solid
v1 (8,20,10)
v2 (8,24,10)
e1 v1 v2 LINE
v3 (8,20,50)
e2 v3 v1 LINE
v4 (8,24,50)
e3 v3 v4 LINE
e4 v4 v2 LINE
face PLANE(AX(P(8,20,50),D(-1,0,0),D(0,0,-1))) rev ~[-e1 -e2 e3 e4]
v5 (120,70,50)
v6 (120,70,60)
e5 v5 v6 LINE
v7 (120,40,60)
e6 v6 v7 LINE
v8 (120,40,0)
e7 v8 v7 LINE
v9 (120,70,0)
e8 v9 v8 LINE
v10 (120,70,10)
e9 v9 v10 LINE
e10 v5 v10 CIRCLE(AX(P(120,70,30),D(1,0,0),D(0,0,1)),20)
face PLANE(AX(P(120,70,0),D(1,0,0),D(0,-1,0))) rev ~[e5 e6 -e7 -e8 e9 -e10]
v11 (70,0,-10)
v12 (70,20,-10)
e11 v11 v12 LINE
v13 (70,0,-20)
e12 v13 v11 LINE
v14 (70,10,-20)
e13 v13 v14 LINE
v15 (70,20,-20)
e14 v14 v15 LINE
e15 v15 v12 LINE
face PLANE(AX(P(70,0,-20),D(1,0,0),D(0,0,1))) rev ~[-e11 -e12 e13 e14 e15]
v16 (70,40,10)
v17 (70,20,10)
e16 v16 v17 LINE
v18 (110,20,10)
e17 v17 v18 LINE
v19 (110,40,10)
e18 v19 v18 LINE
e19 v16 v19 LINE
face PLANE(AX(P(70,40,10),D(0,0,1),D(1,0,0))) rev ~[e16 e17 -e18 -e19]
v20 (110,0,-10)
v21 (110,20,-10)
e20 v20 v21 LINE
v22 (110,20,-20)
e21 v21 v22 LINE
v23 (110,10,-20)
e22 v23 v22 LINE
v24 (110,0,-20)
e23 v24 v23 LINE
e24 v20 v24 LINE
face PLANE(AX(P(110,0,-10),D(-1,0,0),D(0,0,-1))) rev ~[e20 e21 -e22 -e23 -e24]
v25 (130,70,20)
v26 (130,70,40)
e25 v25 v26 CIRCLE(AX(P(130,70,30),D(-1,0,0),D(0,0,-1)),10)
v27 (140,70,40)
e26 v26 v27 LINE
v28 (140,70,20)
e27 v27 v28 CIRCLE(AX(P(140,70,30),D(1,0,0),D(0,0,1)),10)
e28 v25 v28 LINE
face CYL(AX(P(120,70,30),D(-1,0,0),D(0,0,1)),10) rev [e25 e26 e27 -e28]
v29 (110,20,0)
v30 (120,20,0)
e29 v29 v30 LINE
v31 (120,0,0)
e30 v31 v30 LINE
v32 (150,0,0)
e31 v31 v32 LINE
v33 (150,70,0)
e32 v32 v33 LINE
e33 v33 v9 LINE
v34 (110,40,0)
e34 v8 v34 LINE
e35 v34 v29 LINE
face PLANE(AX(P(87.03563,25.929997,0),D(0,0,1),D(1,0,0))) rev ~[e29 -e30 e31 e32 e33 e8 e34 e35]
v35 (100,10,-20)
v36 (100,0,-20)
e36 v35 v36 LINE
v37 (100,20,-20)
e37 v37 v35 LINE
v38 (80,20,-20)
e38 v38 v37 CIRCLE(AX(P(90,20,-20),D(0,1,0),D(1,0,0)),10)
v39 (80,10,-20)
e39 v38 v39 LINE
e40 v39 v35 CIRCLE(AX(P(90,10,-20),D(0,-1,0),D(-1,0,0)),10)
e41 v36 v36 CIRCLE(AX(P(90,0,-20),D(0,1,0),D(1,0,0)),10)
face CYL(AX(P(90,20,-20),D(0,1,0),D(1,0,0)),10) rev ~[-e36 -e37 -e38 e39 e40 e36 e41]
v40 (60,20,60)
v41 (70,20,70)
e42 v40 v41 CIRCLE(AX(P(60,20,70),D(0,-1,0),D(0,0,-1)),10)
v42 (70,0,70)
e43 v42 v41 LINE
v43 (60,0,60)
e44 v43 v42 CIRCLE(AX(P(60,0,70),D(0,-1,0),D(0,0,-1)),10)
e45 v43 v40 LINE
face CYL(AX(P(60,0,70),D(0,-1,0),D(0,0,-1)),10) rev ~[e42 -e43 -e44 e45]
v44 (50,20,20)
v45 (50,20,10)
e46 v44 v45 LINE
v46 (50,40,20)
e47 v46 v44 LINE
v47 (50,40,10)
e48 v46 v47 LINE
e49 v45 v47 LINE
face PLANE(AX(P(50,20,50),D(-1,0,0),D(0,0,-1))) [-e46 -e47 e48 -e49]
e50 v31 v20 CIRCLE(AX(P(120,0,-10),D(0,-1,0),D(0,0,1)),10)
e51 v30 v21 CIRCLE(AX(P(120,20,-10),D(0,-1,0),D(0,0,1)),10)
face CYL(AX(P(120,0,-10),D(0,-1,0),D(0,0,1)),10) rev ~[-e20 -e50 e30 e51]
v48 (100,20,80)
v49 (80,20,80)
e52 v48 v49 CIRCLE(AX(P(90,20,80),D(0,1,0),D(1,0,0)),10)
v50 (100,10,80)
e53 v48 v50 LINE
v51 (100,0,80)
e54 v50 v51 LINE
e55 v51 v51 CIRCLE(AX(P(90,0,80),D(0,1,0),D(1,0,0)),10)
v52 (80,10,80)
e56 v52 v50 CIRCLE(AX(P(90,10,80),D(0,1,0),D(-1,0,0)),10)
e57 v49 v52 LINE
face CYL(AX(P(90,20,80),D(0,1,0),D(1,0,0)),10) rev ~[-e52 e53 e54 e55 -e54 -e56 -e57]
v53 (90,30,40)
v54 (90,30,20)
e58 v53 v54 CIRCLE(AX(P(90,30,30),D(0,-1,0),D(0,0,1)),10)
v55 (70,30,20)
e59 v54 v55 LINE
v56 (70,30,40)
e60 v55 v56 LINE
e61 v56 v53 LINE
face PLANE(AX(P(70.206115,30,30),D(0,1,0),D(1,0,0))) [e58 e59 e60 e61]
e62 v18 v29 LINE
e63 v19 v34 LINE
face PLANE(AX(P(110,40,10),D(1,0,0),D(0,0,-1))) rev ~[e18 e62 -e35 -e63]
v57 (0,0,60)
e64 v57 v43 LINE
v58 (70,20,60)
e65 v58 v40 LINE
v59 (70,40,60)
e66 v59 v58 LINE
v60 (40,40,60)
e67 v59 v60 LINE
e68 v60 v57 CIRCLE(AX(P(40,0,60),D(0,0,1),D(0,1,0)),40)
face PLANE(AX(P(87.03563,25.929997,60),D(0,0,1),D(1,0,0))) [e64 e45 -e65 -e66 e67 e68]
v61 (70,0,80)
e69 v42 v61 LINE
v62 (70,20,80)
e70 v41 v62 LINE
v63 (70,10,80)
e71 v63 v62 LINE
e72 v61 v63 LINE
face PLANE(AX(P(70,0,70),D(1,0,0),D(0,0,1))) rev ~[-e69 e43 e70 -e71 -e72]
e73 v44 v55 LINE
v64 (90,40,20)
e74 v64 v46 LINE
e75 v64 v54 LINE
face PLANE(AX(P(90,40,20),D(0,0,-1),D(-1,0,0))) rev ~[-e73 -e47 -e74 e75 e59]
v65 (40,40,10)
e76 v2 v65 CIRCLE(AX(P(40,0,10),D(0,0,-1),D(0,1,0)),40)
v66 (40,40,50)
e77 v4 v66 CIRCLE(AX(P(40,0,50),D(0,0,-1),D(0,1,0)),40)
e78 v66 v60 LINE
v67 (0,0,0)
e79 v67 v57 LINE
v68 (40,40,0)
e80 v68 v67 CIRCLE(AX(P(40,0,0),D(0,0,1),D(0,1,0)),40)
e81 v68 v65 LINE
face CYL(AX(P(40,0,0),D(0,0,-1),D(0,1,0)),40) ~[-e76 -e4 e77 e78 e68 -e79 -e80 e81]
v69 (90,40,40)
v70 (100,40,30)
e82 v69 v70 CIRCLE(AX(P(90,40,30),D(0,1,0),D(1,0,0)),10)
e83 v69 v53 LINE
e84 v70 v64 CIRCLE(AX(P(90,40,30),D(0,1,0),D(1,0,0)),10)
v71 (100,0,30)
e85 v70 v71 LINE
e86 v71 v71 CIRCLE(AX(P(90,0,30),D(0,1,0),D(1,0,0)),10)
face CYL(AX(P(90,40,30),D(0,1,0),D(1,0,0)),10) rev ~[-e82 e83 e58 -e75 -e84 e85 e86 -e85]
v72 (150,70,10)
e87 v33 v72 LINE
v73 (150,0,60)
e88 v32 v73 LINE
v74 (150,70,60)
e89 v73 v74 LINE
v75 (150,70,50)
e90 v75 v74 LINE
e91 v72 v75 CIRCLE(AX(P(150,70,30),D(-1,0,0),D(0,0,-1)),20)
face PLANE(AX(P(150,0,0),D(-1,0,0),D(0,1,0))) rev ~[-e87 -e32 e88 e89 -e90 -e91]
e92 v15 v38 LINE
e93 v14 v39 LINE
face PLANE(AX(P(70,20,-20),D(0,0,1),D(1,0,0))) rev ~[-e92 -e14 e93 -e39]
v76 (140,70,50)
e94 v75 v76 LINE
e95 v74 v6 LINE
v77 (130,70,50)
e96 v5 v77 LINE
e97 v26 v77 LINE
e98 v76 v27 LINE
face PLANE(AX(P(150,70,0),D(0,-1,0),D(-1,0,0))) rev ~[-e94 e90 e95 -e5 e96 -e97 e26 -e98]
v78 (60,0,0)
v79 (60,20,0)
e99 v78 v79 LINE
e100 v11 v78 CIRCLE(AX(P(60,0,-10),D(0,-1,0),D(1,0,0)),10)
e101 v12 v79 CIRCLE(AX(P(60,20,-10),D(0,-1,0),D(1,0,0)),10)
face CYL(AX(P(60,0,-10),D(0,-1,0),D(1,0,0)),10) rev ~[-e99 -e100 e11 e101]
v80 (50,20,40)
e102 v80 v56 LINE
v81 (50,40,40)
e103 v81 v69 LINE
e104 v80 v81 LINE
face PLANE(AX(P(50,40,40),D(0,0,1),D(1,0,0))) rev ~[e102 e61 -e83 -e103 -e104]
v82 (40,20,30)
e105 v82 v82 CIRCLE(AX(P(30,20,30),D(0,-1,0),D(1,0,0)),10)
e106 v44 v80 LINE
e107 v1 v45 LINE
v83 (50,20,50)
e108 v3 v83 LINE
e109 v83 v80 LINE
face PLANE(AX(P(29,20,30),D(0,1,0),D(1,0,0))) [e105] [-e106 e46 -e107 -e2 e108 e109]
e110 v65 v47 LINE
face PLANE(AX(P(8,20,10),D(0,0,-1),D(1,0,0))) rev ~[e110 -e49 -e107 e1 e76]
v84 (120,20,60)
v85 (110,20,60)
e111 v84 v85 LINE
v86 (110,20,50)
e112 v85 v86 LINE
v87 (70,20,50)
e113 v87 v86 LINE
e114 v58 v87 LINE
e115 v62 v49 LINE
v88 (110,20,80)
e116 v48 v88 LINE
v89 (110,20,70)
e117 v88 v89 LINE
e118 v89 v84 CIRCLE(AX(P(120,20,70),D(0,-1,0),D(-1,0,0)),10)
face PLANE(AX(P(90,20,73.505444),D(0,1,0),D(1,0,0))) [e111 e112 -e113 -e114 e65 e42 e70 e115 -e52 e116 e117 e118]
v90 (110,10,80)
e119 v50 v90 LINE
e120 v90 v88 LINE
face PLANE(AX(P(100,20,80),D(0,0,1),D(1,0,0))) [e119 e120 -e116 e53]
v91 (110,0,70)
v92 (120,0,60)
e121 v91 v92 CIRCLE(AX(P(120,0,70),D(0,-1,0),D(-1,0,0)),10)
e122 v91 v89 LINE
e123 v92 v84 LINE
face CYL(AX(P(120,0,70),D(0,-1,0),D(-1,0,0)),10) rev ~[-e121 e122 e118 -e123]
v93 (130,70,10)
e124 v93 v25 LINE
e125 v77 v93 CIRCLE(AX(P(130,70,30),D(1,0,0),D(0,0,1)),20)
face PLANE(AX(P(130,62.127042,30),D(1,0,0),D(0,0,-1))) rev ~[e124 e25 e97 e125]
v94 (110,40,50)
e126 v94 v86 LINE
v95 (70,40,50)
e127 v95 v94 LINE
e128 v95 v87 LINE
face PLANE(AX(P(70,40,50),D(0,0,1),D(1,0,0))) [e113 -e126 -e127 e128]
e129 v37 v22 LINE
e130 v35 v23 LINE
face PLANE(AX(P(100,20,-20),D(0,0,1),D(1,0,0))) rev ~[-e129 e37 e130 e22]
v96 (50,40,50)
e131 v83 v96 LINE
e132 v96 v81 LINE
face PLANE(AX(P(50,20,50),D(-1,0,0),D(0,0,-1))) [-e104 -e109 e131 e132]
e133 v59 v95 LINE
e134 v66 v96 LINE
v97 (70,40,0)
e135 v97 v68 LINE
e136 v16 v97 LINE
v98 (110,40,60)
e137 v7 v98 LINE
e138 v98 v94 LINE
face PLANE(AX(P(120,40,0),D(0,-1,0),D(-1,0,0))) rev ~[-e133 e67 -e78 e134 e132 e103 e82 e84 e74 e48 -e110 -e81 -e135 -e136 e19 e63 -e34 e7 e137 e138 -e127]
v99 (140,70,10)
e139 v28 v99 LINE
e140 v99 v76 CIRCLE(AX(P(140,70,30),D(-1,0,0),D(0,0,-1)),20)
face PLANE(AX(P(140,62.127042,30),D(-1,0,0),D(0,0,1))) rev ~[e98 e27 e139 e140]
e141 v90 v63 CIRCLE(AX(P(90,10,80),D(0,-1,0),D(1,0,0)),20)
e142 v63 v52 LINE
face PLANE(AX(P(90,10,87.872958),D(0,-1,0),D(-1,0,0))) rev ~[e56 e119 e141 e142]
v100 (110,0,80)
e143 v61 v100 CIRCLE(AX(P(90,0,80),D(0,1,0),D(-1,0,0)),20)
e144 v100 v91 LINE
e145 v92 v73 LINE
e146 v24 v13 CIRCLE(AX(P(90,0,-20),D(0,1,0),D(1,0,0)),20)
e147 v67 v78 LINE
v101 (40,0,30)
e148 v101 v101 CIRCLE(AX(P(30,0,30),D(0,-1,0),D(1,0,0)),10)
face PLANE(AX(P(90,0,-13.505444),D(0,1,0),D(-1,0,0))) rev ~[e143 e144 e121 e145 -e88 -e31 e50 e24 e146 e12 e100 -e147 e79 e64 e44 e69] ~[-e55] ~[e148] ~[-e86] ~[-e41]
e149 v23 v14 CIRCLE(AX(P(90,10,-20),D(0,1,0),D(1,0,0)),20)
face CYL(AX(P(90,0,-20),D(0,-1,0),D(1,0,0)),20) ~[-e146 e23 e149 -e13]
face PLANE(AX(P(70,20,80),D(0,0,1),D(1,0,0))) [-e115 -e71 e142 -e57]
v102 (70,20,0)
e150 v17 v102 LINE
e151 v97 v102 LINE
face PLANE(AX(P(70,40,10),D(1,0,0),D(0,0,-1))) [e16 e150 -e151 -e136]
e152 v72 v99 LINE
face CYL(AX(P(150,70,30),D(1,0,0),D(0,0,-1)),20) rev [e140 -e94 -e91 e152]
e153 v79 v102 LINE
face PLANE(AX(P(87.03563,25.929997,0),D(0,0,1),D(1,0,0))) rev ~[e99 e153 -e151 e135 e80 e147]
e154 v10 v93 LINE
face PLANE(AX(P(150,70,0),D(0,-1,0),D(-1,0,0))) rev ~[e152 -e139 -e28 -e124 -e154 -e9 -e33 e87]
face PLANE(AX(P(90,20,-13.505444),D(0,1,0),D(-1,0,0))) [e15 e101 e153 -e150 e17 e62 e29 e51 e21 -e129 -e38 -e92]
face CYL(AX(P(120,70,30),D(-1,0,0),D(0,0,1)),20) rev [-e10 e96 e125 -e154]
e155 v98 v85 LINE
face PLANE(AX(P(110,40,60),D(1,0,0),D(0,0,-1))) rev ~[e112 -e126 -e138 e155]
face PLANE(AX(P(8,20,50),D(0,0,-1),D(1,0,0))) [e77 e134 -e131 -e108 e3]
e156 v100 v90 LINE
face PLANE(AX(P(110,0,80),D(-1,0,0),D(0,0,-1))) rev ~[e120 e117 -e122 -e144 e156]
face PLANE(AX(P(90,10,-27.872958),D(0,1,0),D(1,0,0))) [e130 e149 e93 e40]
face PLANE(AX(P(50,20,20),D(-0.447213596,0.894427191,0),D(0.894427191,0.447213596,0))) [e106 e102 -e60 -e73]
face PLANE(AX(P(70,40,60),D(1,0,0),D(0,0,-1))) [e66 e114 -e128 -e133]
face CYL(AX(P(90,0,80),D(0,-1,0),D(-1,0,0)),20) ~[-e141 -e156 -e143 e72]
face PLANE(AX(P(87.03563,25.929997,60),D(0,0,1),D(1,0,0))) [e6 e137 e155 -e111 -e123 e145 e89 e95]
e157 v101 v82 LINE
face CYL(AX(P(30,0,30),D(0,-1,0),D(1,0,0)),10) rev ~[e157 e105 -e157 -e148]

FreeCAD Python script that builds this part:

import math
import FreeCAD as App
import Part
import Sketcher

V = App.Vector

doc = App.newDocument("Part")
body = doc.addObject("PartDesign::Body", "Body")

# Sketch on XY plane
sketch1 = body.newObject("Sketcher::SketchObject", "Sketch")
sketch1.AttachmentSupport = (doc.getObject("XY_Plane"), [""])
sketch1.MapMode = "FlatFace"
sketch1.addGeometry(Part.LineSegment(V(0, 0, 0), V(150, 0, 0)), False)
sketch1.addGeometry(Part.LineSegment(V(150, 0, 0), V(150, 70, 0)), False)
sketch1.addGeometry(Part.LineSegment(V(150, 70, 0), V(120, 70, 0)), False)
sketch1.addGeometry(Part.LineSegment(V(120, 70, 0), V(120, 40, 0)), False)
sketch1.addGeometry(Part.LineSegment(V(120, 40, 0), V(40, 40, 0)), False)
sketch1.addGeometry(Part.ArcOfCircle(Part.Circle(V(40, 0, 0), V(0, 0, 1), 40), math.radians(90), math.radians(180)), False)
sketch1.addConstraint(Sketcher.Constraint("Coincident", 0, 2, 1, 1))
sketch1.addConstraint(Sketcher.Constraint("Coincident", 1, 2, 2, 1))
sketch1.addConstraint(Sketcher.Constraint("Coincident", 2, 2, 3, 1))
sketch1.addConstraint(Sketcher.Constraint("Coincident", 3, 2, 4, 1))
sketch1.addConstraint(Sketcher.Constraint("Tangent", 4, 2, 5, 1))
sketch1.addConstraint(Sketcher.Constraint("Coincident", 5, 2, 0, 1))
sketch1.addConstraint(Sketcher.Constraint("Horizontal", 0))
sketch1.addConstraint(Sketcher.Constraint("Vertical", 1))
sketch1.addConstraint(Sketcher.Constraint("Horizontal", 2))
sketch1.addConstraint(Sketcher.Constraint("Vertical", 3))
sketch1.addConstraint(Sketcher.Constraint("Horizontal", 4))
sketch1.addConstraint(Sketcher.Constraint("Coincident", 5, 2, -1, 1))
sketch1.addConstraint(Sketcher.Constraint("PointOnObject", 5, 3, -1))
sketch1.addConstraint(Sketcher.Constraint("Equal", 2, 3))
sketch1.addConstraint(Sketcher.Constraint("Radius", 5, 40.0))
sketch1.addConstraint(Sketcher.Constraint("DistanceX", 0, 1, 0, 2, 150.0))
sketch1.addConstraint(Sketcher.Constraint("DistanceX", 2, 2, 2, 1, 30.0))
pad1 = body.newObject("PartDesign::Pad", "Pad")
pad1.Profile = sketch1
pad1.Length = 60

# Sketch on YZ plane
sketch2 = body.newObject("Sketcher::SketchObject", "Sketch001")
sketch2.AttachmentSupport = (doc.getObject("YZ_Plane"), [""])
sketch2.MapMode = "FlatFace"
sketch2.AttachmentOffset = App.Placement(V(0, 0, 150), App.Rotation())
sketch2.addGeometry(Part.LineSegment(V(70, 40, 0), V(70, 50, 0)), False)
sketch2.addGeometry(Part.ArcOfCircle(Part.Circle(V(70, 30, 0), V(0, 0, 1), 20), math.radians(90), math.radians(270)), False)
sketch2.addGeometry(Part.LineSegment(V(70, 10, 0), V(70, 20, 0)), False)
sketch2.addGeometry(Part.ArcOfCircle(Part.Circle(V(70, 30, 0), V(0, 0, 1), 10), math.radians(90), math.radians(270)), False)
sketch2.addConstraint(Sketcher.Constraint("Coincident", 0, 2, 1, 1))
sketch2.addConstraint(Sketcher.Constraint("Coincident", 1, 2, 2, 1))
sketch2.addConstraint(Sketcher.Constraint("Coincident", 2, 2, 3, 2))
sketch2.addConstraint(Sketcher.Constraint("Coincident", 3, 1, 0, 1))
sketch2.addConstraint(Sketcher.Constraint("Vertical", 0))
sketch2.addConstraint(Sketcher.Constraint("Vertical", 2))
sketch2.addConstraint(Sketcher.Constraint("Coincident", 3, 3, 1, 3))
sketch2.addConstraint(Sketcher.Constraint("Vertical", 3, 3, 0, 2))
sketch2.addConstraint(Sketcher.Constraint("Vertical", 0, 2, 1, 2))
sketch2.addConstraint(Sketcher.Constraint("Radius", 1, 20.0))
sketch2.addConstraint(Sketcher.Constraint("Radius", 3, 10.0))
sketch2.addConstraint(Sketcher.Constraint("DistanceX", -1, 1, 1, 3, 70.0))
sketch2.addConstraint(Sketcher.Constraint("DistanceY", -1, 1, 1, 3, 30.0))
pocket1 = body.newObject("PartDesign::Pocket", "Pocket")
pocket1.Profile = sketch2
pocket1.Length = 10

# Sketch on YZ plane
sketch3 = body.newObject("Sketcher::SketchObject", "Sketch002")
sketch3.AttachmentSupport = (doc.getObject("YZ_Plane"), [""])
sketch3.MapMode = "FlatFace"
sketch3.AttachmentOffset = App.Placement(V(0, 0, 120), App.Rotation())
sketch3.addGeometry(Part.LineSegment(V(70, 20, 0), V(70, 10, 0)), False)
sketch3.addGeometry(Part.ArcOfCircle(Part.Circle(V(70, 30, 0), V(0, 0, 1), 20), math.radians(90), math.radians(270)), False)
sketch3.addGeometry(Part.LineSegment(V(70, 50, 0), V(70, 40, 0)), False)
sketch3.addGeometry(Part.ArcOfCircle(Part.Circle(V(70, 30, 0), V(0, 0, 1), 10), math.radians(90), math.radians(270)), False)
sketch3.addConstraint(Sketcher.Constraint("Coincident", 0, 2, 1, 2))
sketch3.addConstraint(Sketcher.Constraint("Coincident", 1, 1, 2, 1))
sketch3.addConstraint(Sketcher.Constraint("Coincident", 2, 2, 3, 1))
sketch3.addConstraint(Sketcher.Constraint("Coincident", 3, 2, 0, 1))
sketch3.addConstraint(Sketcher.Constraint("Vertical", 0))
sketch3.addConstraint(Sketcher.Constraint("Vertical", 2))
sketch3.addConstraint(Sketcher.Constraint("Coincident", 3, 3, 1, 3))
sketch3.addConstraint(Sketcher.Constraint("Vertical", 3, 3, 0, 2))
sketch3.addConstraint(Sketcher.Constraint("Vertical", 0, 2, 1, 1))
sketch3.addConstraint(Sketcher.Constraint("Radius", 1, 20.0))
sketch3.addConstraint(Sketcher.Constraint("Radius", 3, 10.0))
sketch3.addConstraint(Sketcher.Constraint("DistanceX", -1, 1, 1, 3, 70.0))
sketch3.addConstraint(Sketcher.Constraint("DistanceY", -1, 1, 1, 3, 30.0))
pocket2 = body.newObject("PartDesign::Pocket", "Pocket001")
pocket2.Profile = sketch3
pocket2.Length = 10
pocket2.Reversed = True

# Sketch on YZ plane
sketch4 = body.newObject("Sketcher::SketchObject", "Sketch003")
sketch4.AttachmentSupport = (doc.getObject("YZ_Plane"), [""])
sketch4.MapMode = "FlatFace"
sketch4.AttachmentOffset = App.Placement(V(0, 0, 120), App.Rotation())
sketch4.addGeometry(Part.LineSegment(V(70, 40, 0), V(70, 20, 0)), False)
sketch4.addGeometry(Part.ArcOfCircle(Part.Circle(V(70, 30, 0), V(0, 0, 1), 10), math.radians(90), math.radians(270)), False)
sketch4.addConstraint(Sketcher.Constraint("Coincident", 0, 1, 1, 1))
sketch4.addConstraint(Sketcher.Constraint("Coincident", 1, 2, 0, 2))
sketch4.addConstraint(Sketcher.Constraint("Vertical", 0))
sketch4.addConstraint(Sketcher.Constraint("Vertical", 1, 3, 0, 1))
sketch4.addConstraint(Sketcher.Constraint("Radius", 1, 10.0))
sketch4.addConstraint(Sketcher.Constraint("DistanceX", -1, 1, 1, 3, 70.0))
sketch4.addConstraint(Sketcher.Constraint("DistanceY", -1, 1, 1, 3, 30.0))
pocket3 = body.newObject("PartDesign::Pocket", "Pocket002")
pocket3.Profile = sketch4
pocket3.Length = 30
pocket3.Reversed = True

# Sketch on XZ plane
sketch5 = body.newObject("Sketcher::SketchObject", "Sketch004")
sketch5.AttachmentSupport = (doc.getObject("XZ_Plane"), [""])
sketch5.MapMode = "FlatFace"
sketch5.AttachmentOffset = App.Placement(V(0, 0, -40), App.Rotation())
sketch5.addGeometry(Part.Circle(V(90, 30, 0), V(0, 0, 1), 10), False)
sketch5.addConstraint(Sketcher.Constraint("Diameter", 0, 20.0))
sketch5.addConstraint(Sketcher.Constraint("DistanceX", -1, 1, 0, 3, 90.0))
sketch5.addConstraint(Sketcher.Constraint("DistanceY", -1, 1, 0, 3, 30.0))
pocket4 = body.newObject("PartDesign::Pocket", "Pocket003")
pocket4.Profile = sketch5
pocket4.Length = 75
pocket4.Reversed = True

# Sketch on XZ plane
sketch6 = body.newObject("Sketcher::SketchObject", "Sketch005")
sketch6.AttachmentSupport = (doc.getObject("XZ_Plane"), [""])
sketch6.MapMode = "FlatFace"
sketch6.addGeometry(Part.Circle(V(30, 30, 0), V(0, 0, 1), 10), False)
sketch6.addConstraint(Sketcher.Constraint("Diameter", 0, 20.0))
sketch6.addConstraint(Sketcher.Constraint("DistanceX", -1, 1, 0, 3, 30.0))
sketch6.addConstraint(Sketcher.Constraint("DistanceY", -1, 1, 0, 3, 30.0))
pocket5 = body.newObject("PartDesign::Pocket", "Pocket004")
pocket5.Profile = sketch6
pocket5.Length = 75

# Sketch on XZ plane
sketch7 = body.newObject("Sketcher::SketchObject", "Sketch006")
sketch7.AttachmentSupport = (doc.getObject("XZ_Plane"), [""])
sketch7.MapMode = "FlatFace"
sketch7.AttachmentOffset = App.Placement(V(0, 0, -20), App.Rotation())
sketch7.addGeometry(Part.LineSegment(V(8, 10, 0), V(8, 50, 0)), False)
sketch7.addGeometry(Part.LineSegment(V(8, 50, 0), V(50, 50, 0)), False)
sketch7.addGeometry(Part.LineSegment(V(50, 50, 0), V(50, 10, 0)), False)
sketch7.addGeometry(Part.LineSegment(V(50, 10, 0), V(8, 10, 0)), False)
sketch7.addConstraint(Sketcher.Constraint("Coincident", 0, 2, 1, 1))
sketch7.addConstraint(Sketcher.Constraint("Coincident", 1, 2, 2, 1))
sketch7.addConstraint(Sketcher.Constraint("Coincident", 2, 2, 3, 1))
sketch7.addConstraint(Sketcher.Constraint("Coincident", 3, 2, 0, 1))
sketch7.addConstraint(Sketcher.Constraint("Vertical", 0))
sketch7.addConstraint(Sketcher.Constraint("Horizontal", 1))
sketch7.addConstraint(Sketcher.Constraint("Vertical", 2))
sketch7.addConstraint(Sketcher.Constraint("Horizontal", 3))
sketch7.addConstraint(Sketcher.Constraint("DistanceX", 1, 1, 1, 2, 42.0))
sketch7.addConstraint(Sketcher.Constraint("DistanceY", 0, 1, 0, 2, 40.0))
sketch7.addConstraint(Sketcher.Constraint("DistanceX", -1, 1, 0, 2, 8.0))
sketch7.addConstraint(Sketcher.Constraint("DistanceY", -1, 1, 0, 2, 50.0))
pocket6 = body.newObject("PartDesign::Pocket", "Pocket005")
pocket6.Profile = sketch7
pocket6.Length = 65

# Sketch on XZ plane
sketch8 = body.newObject("Sketcher::SketchObject", "Sketch007")
sketch8.AttachmentSupport = (doc.getObject("XZ_Plane"), [""])
sketch8.MapMode = "FlatFace"
sketch8.AttachmentOffset = App.Placement(V(0, 0, -40), App.Rotation())
sketch8.addGeometry(Part.LineSegment(V(90, 20, 0), V(50, 20, 0)), False)
sketch8.addGeometry(Part.LineSegment(V(50, 20, 0), V(50, 40, 0)), False)
sketch8.addGeometry(Part.LineSegment(V(50, 40, 0), V(90, 40, 0)), False)
sketch8.addGeometry(Part.ArcOfCircle(Part.Circle(V(90, 30, 0), V(0, 0, 1), 10), math.radians(90), math.radians(270)), False)
sketch8.addConstraint(Sketcher.Constraint("Coincident", 0, 2, 1, 1))
sketch8.addConstraint(Sketcher.Constraint("Coincident", 1, 2, 2, 1))
sketch8.addConstraint(Sketcher.Constraint("Tangent", 2, 2, 3, 1))
sketch8.addConstraint(Sketcher.Constraint("Tangent", 3, 2, 0, 1))
sketch8.addConstraint(Sketcher.Constraint("Horizontal", 0))
sketch8.addConstraint(Sketcher.Constraint("Vertical", 1))
sketch8.addConstraint(Sketcher.Constraint("Horizontal", 2))
sketch8.addConstraint(Sketcher.Constraint("Radius", 3, 10.0))
sketch8.addConstraint(Sketcher.Constraint("DistanceX", 0, 2, 0, 1, 40.0))
sketch8.addConstraint(Sketcher.Constraint("DistanceX", -1, 1, 3, 3, 90.0))
sketch8.addConstraint(Sketcher.Constraint("DistanceY", -1, 1, 3, 3, 30.0))
pocket7 = body.newObject("PartDesign::Pocket", "Pocket006")
pocket7.Profile = sketch8
pocket7.Length = 10
pocket7.Reversed = True

# Sketch on XY plane
sketch9 = body.newObject("Sketcher::SketchObject", "Sketch008")
sketch9.AttachmentSupport = (doc.getObject("XY_Plane"), [""])
sketch9.MapMode = "FlatFace"
sketch9.AttachmentOffset = App.Placement(V(0, 0, 20), App.Rotation())
sketch9.addGeometry(Part.LineSegment(V(50, 20, 0), V(70, 30, 0)), False)
sketch9.addGeometry(Part.LineSegment(V(70, 30, 0), V(50, 30, 0)), False)
sketch9.addGeometry(Part.LineSegment(V(50, 30, 0), V(50, 20, 0)), False)
sketch9.addConstraint(Sketcher.Constraint("Coincident", 0, 2, 1, 1))
sketch9.addConstraint(Sketcher.Constraint("Coincident", 1, 2, 2, 1))
sketch9.addConstraint(Sketcher.Constraint("Coincident", 2, 2, 0, 1))
sketch9.addConstraint(Sketcher.Constraint("Horizontal", 1))
sketch9.addConstraint(Sketcher.Constraint("Vertical", 2))
sketch9.addConstraint(Sketcher.Constraint("DistanceX", 1, 2, 1, 1, 20.0))
sketch9.addConstraint(Sketcher.Constraint("DistanceY", 2, 2, 2, 1, 10.0))
sketch9.addConstraint(Sketcher.Constraint("DistanceX", -1, 1, 0, 2, 70.0))
sketch9.addConstraint(Sketcher.Constraint("DistanceY", -1, 1, 0, 2, 30.0))
pocket8 = body.newObject("PartDesign::Pocket", "Pocket007")
pocket8.Profile = sketch9
pocket8.Length = 20
pocket8.Reversed = True

# Sketch on XZ plane
sketch10 = body.newObject("Sketcher::SketchObject", "Sketch009")
sketch10.AttachmentSupport = (doc.getObject("XZ_Plane"), [""])
sketch10.MapMode = "FlatFace"
sketch10.AttachmentOffset = App.Placement(V(0, 0, -40), App.Rotation())
sketch10.addGeometry(Part.LineSegment(V(70, 50, 0), V(70, 60, 0)), False)
sketch10.addGeometry(Part.LineSegment(V(70, 60, 0), V(110, 60, 0)), False)
sketch10.addGeometry(Part.LineSegment(V(110, 60, 0), V(110, 50, 0)), False)
sketch10.addGeometry(Part.LineSegment(V(110, 50, 0), V(70, 50, 0)), False)
sketch10.addGeometry(Part.LineSegment(V(70, 0, 0), V(70, 10, 0)), False)
sketch10.addGeometry(Part.LineSegment(V(70, 10, 0), V(110, 10, 0)), False)
sketch10.addGeometry(Part.LineSegment(V(110, 10, 0), V(110, 0, 0)), False)
sketch10.addGeometry(Part.LineSegment(V(110, 0, 0), V(70, 0, 0)), False)
sketch10.addConstraint(Sketcher.Constraint("Coincident", 0, 2, 1, 1))
sketch10.addConstraint(Sketcher.Constraint("Coincident", 1, 2, 2, 1))
sketch10.addConstraint(Sketcher.Constraint("Coincident", 2, 2, 3, 1))
sketch10.addConstraint(Sketcher.Constraint("Coincident", 3, 2, 0, 1))
sketch10.addConstraint(Sketcher.Constraint("Coincident", 4, 2, 5, 1))
sketch10.addConstraint(Sketcher.Constraint("Coincident", 5, 2, 6, 1))
sketch10.addConstraint(Sketcher.Constraint("Coincident", 6, 2, 7, 1))
sketch10.addConstraint(Sketcher.Constraint("Coincident", 7, 2, 4, 1))
sketch10.addConstraint(Sketcher.Constraint("Vertical", 0))
sketch10.addConstraint(Sketcher.Constraint("Horizontal", 1))
sketch10.addConstraint(Sketcher.Constraint("Vertical", 2))
sketch10.addConstraint(Sketcher.Constraint("Horizontal", 3))
sketch10.addConstraint(Sketcher.Constraint("Vertical", 4))
sketch10.addConstraint(Sketcher.Constraint("Horizontal", 5))
sketch10.addConstraint(Sketcher.Constraint("Vertical", 6))
sketch10.addConstraint(Sketcher.Constraint("Horizontal", 7))
sketch10.addConstraint(Sketcher.Constraint("PointOnObject", 6, 2, -1))
sketch10.addConstraint(Sketcher.Constraint("Vertical", 3, 2, 4, 2))
sketch10.addConstraint(Sketcher.Constraint("Vertical", 2, 2, 5, 2))
sketch10.addConstraint(Sketcher.Constraint("Equal", 2, 4))
sketch10.addConstraint(Sketcher.Constraint("DistanceX", 1, 1, 1, 2, 40.0))
sketch10.addConstraint(Sketcher.Constraint("DistanceY", 0, 1, 0, 2, 10.0))
sketch10.addConstraint(Sketcher.Constraint("DistanceX", -1, 1, 0, 2, 70.0))
sketch10.addConstraint(Sketcher.Constraint("DistanceY", -1, 1, 0, 2, 60.0))
pocket9 = body.newObject("PartDesign::Pocket", "Pocket008")
pocket9.Profile = sketch10
pocket9.Length = 20
pocket9.Reversed = True

# Sketch on XZ plane
sketch11 = body.newObject("Sketcher::SketchObject", "Sketch010")
sketch11.AttachmentSupport = (doc.getObject("XZ_Plane"), [""])
sketch11.MapMode = "FlatFace"
sketch11.addGeometry(Part.LineSegment(V(70, 70, 0), V(70, 80, 0)), False)
sketch11.addGeometry(Part.ArcOfCircle(Part.Circle(V(90, 80, 0), V(0, 0, 1), 20), math.radians(0), math.radians(180)), False)
sketch11.addGeometry(Part.LineSegment(V(110, 80, 0), V(110, 70, 0)), False)
sketch11.addGeometry(Part.ArcOfCircle(Part.Circle(V(120, 70, 0), V(0, 0, 1), 10), math.radians(180), math.radians(270)), False)
sketch11.addGeometry(Part.LineSegment(V(120, 60, 0), V(60, 60, 0)), False)
sketch11.addGeometry(Part.ArcOfCircle(Part.Circle(V(60, 70, 0), V(0, 0, 1), 10), math.radians(-90), math.radians(0)), False)
sketch11.addConstraint(Sketcher.Constraint("Tangent", 0, 2, 1, 2))
sketch11.addConstraint(Sketcher.Constraint("Tangent", 1, 1, 2, 1))
sketch11.addConstraint(Sketcher.Constraint("Tangent", 2, 2, 3, 1))
sketch11.addConstraint(Sketcher.Constraint("Tangent", 3, 2, 4, 1))
sketch11.addConstraint(Sketcher.Constraint("Tangent", 4, 2, 5, 1))
sketch11.addConstraint(Sketcher.Constraint("Tangent", 5, 2, 0, 1))
sketch11.addConstraint(Sketcher.Constraint("Vertical", 0))
sketch11.addConstraint(Sketcher.Constraint("Vertical", 2))
sketch11.addConstraint(Sketcher.Constraint("Horizontal", 4))
sketch11.addConstraint(Sketcher.Constraint("Equal", 3, 5))
sketch11.addConstraint(Sketcher.Constraint("Radius", 1, 20.0))
sketch11.addConstraint(Sketcher.Constraint("Radius", 3, 10.0))
sketch11.addConstraint(Sketcher.Constraint("DistanceY", 0, 1, 0, 2, 10.0))
sketch11.addConstraint(Sketcher.Constraint("DistanceX", -1, 1, 1, 3, 90.0))
sketch11.addConstraint(Sketcher.Constraint("DistanceY", -1, 1, 1, 3, 80.0))
pad2 = body.newObject("PartDesign::Pad", "Pad001")
pad2.Profile = sketch11
pad2.Length = 20
pad2.Reversed = True

# Sketch on XZ plane
sketch12 = body.newObject("Sketcher::SketchObject", "Sketch011")
sketch12.AttachmentSupport = (doc.getObject("XZ_Plane"), [""])
sketch12.MapMode = "FlatFace"
sketch12.AttachmentOffset = App.Placement(V(0, 0, -20), App.Rotation())
sketch12.addGeometry(Part.Circle(V(90, 80, 0), V(0, 0, 1), 10), False)
sketch12.addConstraint(Sketcher.Constraint("Diameter", 0, 20.0))
sketch12.addConstraint(Sketcher.Constraint("DistanceX", -1, 1, 0, 3, 90.0))
sketch12.addConstraint(Sketcher.Constraint("DistanceY", -1, 1, 0, 3, 80.0))
pocket10 = body.newObject("PartDesign::Pocket", "Pocket009")
pocket10.Profile = sketch12
pocket10.Length = 20
pocket10.Reversed = True

# Sketch on XZ plane
sketch13 = body.newObject("Sketcher::SketchObject", "Sketch012")
sketch13.AttachmentSupport = (doc.getObject("XZ_Plane"), [""])
sketch13.MapMode = "FlatFace"
sketch13.AttachmentOffset = App.Placement(V(0, 0, -20), App.Rotation())
sketch13.addGeometry(Part.LineSegment(V(80, 80, 0), V(70, 80, 0)), False)
sketch13.addGeometry(Part.ArcOfCircle(Part.Circle(V(90, 80, 0), V(0, 0, 1), 20), math.radians(0), math.radians(180)), False)
sketch13.addGeometry(Part.LineSegment(V(110, 80, 0), V(100, 80, 0)), False)
sketch13.addGeometry(Part.ArcOfCircle(Part.Circle(V(90, 80, 0), V(0, 0, 1), 10), math.radians(0), math.radians(180)), False)
sketch13.addConstraint(Sketcher.Constraint("Coincident", 0, 2, 1, 2))
sketch13.addConstraint(Sketcher.Constraint("Coincident", 1, 1, 2, 1))
sketch13.addConstraint(Sketcher.Constraint("Coincident", 2, 2, 3, 1))
sketch13.addConstraint(Sketcher.Constraint("Coincident", 3, 2, 0, 1))
sketch13.addConstraint(Sketcher.Constraint("Horizontal", 0))
sketch13.addConstraint(Sketcher.Constraint("Horizontal", 2))
sketch13.addConstraint(Sketcher.Constraint("Coincident", 3, 3, 1, 3))
sketch13.addConstraint(Sketcher.Constraint("Horizontal", 3, 3, 0, 2))
sketch13.addConstraint(Sketcher.Constraint("Horizontal", 0, 2, 1, 1))
sketch13.addConstraint(Sketcher.Constraint("Radius", 1, 20.0))
sketch13.addConstraint(Sketcher.Constraint("Radius", 3, 10.0))
sketch13.addConstraint(Sketcher.Constraint("DistanceX", -1, 1, 1, 3, 90.0))
sketch13.addConstraint(Sketcher.Constraint("DistanceY", -1, 1, 1, 3, 80.0))
pocket11 = body.newObject("PartDesign::Pocket", "Pocket010")
pocket11.Profile = sketch13
pocket11.Length = 10
pocket11.Reversed = True

# Sketch on XZ plane
sketch14 = body.newObject("Sketcher::SketchObject", "Sketch013")
sketch14.AttachmentSupport = (doc.getObject("XZ_Plane"), [""])
sketch14.MapMode = "FlatFace"
sketch14.addGeometry(Part.LineSegment(V(110, -20, 0), V(110, -10, 0)), False)
sketch14.addGeometry(Part.ArcOfCircle(Part.Circle(V(120, -10, 0), V(0, 0, 1), 10), math.radians(90), math.radians(180)), False)
sketch14.addGeometry(Part.LineSegment(V(120, 0, 0), V(60, 0, 0)), False)
sketch14.addGeometry(Part.ArcOfCircle(Part.Circle(V(60, -10, 0), V(0, 0, 1), 10), math.radians(0), math.radians(90)), False)
sketch14.addGeometry(Part.LineSegment(V(70, -10, 0), V(70, -20, 0)), False)
sketch14.addGeometry(Part.ArcOfCircle(Part.Circle(V(90, -20, 0), V(0, 0, 1), 20), math.radians(180), math.radians(360)), False)
sketch14.addConstraint(Sketcher.Constraint("Tangent", 0, 2, 1, 2))
sketch14.addConstraint(Sketcher.Constraint("Tangent", 1, 1, 2, 1))
sketch14.addConstraint(Sketcher.Constraint("Tangent", 2, 2, 3, 2))
sketch14.addConstraint(Sketcher.Constraint("Tangent", 3, 1, 4, 1))
sketch14.addConstraint(Sketcher.Constraint("Tangent", 4, 2, 5, 1))
sketch14.addConstraint(Sketcher.Constraint("Tangent", 5, 2, 0, 1))
sketch14.addConstraint(Sketcher.Constraint("Vertical", 0))
sketch14.addConstraint(Sketcher.Constraint("Horizontal", 2))
sketch14.addConstraint(Sketcher.Constraint("Vertical", 4))
sketch14.addConstraint(Sketcher.Constraint("Equal", 1, 3))
sketch14.addConstraint(Sketcher.Constraint("PointOnObject", 1, 1, -1))
sketch14.addConstraint(Sketcher.Constraint("Radius", 1, 10.0))
sketch14.addConstraint(Sketcher.Constraint("Radius", 5, 20.0))
sketch14.addConstraint(Sketcher.Constraint("DistanceY", 0, 1, 0, 2, 10.0))
sketch14.addConstraint(Sketcher.Constraint("DistanceX", -1, 1, 1, 3, 120.0))
pad3 = body.newObject("PartDesign::Pad", "Pad002")
pad3.Profile = sketch14
pad3.Length = 20
pad3.Reversed = True

# Sketch on XZ plane
sketch15 = body.newObject("Sketcher::SketchObject", "Sketch014")
sketch15.AttachmentSupport = (doc.getObject("XZ_Plane"), [""])
sketch15.MapMode = "FlatFace"
sketch15.AttachmentOffset = App.Placement(V(0, 0, -20), App.Rotation())
sketch15.addGeometry(Part.Circle(V(90, -20, 0), V(0, 0, 1), 10), False)
sketch15.addConstraint(Sketcher.Constraint("Diameter", 0, 20.0))
sketch15.addConstraint(Sketcher.Constraint("DistanceX", -1, 1, 0, 3, 90.0))
sketch15.addConstraint(Sketcher.Constraint("DistanceY", 0, 3, -1, 1, 20.0))
pocket12 = body.newObject("PartDesign::Pocket", "Pocket011")
pocket12.Profile = sketch15
pocket12.Length = 20
pocket12.Reversed = True

# Sketch on XZ plane
sketch16 = body.newObject("Sketcher::SketchObject", "Sketch015")
sketch16.AttachmentSupport = (doc.getObject("XZ_Plane"), [""])
sketch16.MapMode = "FlatFace"
sketch16.AttachmentOffset = App.Placement(V(0, 0, -20), App.Rotation())
sketch16.addGeometry(Part.LineSegment(V(100, -20, 0), V(110, -20, 0)), False)
sketch16.addGeometry(Part.ArcOfCircle(Part.Circle(V(90, -20, 0), V(0, 0, 1), 20), math.radians(180), math.radians(360)), False)
sketch16.addGeometry(Part.LineSegment(V(70, -20, 0), V(80, -20, 0)), False)
sketch16.addGeometry(Part.ArcOfCircle(Part.Circle(V(90, -20, 0), V(0, 0, 1), 10), math.radians(180), math.radians(360)), False)
sketch16.addConstraint(Sketcher.Constraint("Coincident", 0, 2, 1, 2))
sketch16.addConstraint(Sketcher.Constraint("Coincident", 1, 1, 2, 1))
sketch16.addConstraint(Sketcher.Constraint("Coincident", 2, 2, 3, 1))
sketch16.addConstraint(Sketcher.Constraint("Coincident", 3, 2, 0, 1))
sketch16.addConstraint(Sketcher.Constraint("Horizontal", 0))
sketch16.addConstraint(Sketcher.Constraint("Horizontal", 2))
sketch16.addConstraint(Sketcher.Constraint("Coincident", 3, 3, 1, 3))
sketch16.addConstraint(Sketcher.Constraint("Horizontal", 3, 3, 0, 2))
sketch16.addConstraint(Sketcher.Constraint("Horizontal", 0, 2, 1, 1))
sketch16.addConstraint(Sketcher.Constraint("Radius", 1, 20.0))
sketch16.addConstraint(Sketcher.Constraint("Radius", 3, 10.0))
sketch16.addConstraint(Sketcher.Constraint("DistanceX", -1, 1, 1, 3, 90.0))
sketch16.addConstraint(Sketcher.Constraint("DistanceY", 1, 3, -1, 1, 20.0))
pocket13 = body.newObject("PartDesign::Pocket", "Pocket012")
pocket13.Profile = sketch16
pocket13.Length = 10
pocket13.Reversed = True

doc.recompute()
